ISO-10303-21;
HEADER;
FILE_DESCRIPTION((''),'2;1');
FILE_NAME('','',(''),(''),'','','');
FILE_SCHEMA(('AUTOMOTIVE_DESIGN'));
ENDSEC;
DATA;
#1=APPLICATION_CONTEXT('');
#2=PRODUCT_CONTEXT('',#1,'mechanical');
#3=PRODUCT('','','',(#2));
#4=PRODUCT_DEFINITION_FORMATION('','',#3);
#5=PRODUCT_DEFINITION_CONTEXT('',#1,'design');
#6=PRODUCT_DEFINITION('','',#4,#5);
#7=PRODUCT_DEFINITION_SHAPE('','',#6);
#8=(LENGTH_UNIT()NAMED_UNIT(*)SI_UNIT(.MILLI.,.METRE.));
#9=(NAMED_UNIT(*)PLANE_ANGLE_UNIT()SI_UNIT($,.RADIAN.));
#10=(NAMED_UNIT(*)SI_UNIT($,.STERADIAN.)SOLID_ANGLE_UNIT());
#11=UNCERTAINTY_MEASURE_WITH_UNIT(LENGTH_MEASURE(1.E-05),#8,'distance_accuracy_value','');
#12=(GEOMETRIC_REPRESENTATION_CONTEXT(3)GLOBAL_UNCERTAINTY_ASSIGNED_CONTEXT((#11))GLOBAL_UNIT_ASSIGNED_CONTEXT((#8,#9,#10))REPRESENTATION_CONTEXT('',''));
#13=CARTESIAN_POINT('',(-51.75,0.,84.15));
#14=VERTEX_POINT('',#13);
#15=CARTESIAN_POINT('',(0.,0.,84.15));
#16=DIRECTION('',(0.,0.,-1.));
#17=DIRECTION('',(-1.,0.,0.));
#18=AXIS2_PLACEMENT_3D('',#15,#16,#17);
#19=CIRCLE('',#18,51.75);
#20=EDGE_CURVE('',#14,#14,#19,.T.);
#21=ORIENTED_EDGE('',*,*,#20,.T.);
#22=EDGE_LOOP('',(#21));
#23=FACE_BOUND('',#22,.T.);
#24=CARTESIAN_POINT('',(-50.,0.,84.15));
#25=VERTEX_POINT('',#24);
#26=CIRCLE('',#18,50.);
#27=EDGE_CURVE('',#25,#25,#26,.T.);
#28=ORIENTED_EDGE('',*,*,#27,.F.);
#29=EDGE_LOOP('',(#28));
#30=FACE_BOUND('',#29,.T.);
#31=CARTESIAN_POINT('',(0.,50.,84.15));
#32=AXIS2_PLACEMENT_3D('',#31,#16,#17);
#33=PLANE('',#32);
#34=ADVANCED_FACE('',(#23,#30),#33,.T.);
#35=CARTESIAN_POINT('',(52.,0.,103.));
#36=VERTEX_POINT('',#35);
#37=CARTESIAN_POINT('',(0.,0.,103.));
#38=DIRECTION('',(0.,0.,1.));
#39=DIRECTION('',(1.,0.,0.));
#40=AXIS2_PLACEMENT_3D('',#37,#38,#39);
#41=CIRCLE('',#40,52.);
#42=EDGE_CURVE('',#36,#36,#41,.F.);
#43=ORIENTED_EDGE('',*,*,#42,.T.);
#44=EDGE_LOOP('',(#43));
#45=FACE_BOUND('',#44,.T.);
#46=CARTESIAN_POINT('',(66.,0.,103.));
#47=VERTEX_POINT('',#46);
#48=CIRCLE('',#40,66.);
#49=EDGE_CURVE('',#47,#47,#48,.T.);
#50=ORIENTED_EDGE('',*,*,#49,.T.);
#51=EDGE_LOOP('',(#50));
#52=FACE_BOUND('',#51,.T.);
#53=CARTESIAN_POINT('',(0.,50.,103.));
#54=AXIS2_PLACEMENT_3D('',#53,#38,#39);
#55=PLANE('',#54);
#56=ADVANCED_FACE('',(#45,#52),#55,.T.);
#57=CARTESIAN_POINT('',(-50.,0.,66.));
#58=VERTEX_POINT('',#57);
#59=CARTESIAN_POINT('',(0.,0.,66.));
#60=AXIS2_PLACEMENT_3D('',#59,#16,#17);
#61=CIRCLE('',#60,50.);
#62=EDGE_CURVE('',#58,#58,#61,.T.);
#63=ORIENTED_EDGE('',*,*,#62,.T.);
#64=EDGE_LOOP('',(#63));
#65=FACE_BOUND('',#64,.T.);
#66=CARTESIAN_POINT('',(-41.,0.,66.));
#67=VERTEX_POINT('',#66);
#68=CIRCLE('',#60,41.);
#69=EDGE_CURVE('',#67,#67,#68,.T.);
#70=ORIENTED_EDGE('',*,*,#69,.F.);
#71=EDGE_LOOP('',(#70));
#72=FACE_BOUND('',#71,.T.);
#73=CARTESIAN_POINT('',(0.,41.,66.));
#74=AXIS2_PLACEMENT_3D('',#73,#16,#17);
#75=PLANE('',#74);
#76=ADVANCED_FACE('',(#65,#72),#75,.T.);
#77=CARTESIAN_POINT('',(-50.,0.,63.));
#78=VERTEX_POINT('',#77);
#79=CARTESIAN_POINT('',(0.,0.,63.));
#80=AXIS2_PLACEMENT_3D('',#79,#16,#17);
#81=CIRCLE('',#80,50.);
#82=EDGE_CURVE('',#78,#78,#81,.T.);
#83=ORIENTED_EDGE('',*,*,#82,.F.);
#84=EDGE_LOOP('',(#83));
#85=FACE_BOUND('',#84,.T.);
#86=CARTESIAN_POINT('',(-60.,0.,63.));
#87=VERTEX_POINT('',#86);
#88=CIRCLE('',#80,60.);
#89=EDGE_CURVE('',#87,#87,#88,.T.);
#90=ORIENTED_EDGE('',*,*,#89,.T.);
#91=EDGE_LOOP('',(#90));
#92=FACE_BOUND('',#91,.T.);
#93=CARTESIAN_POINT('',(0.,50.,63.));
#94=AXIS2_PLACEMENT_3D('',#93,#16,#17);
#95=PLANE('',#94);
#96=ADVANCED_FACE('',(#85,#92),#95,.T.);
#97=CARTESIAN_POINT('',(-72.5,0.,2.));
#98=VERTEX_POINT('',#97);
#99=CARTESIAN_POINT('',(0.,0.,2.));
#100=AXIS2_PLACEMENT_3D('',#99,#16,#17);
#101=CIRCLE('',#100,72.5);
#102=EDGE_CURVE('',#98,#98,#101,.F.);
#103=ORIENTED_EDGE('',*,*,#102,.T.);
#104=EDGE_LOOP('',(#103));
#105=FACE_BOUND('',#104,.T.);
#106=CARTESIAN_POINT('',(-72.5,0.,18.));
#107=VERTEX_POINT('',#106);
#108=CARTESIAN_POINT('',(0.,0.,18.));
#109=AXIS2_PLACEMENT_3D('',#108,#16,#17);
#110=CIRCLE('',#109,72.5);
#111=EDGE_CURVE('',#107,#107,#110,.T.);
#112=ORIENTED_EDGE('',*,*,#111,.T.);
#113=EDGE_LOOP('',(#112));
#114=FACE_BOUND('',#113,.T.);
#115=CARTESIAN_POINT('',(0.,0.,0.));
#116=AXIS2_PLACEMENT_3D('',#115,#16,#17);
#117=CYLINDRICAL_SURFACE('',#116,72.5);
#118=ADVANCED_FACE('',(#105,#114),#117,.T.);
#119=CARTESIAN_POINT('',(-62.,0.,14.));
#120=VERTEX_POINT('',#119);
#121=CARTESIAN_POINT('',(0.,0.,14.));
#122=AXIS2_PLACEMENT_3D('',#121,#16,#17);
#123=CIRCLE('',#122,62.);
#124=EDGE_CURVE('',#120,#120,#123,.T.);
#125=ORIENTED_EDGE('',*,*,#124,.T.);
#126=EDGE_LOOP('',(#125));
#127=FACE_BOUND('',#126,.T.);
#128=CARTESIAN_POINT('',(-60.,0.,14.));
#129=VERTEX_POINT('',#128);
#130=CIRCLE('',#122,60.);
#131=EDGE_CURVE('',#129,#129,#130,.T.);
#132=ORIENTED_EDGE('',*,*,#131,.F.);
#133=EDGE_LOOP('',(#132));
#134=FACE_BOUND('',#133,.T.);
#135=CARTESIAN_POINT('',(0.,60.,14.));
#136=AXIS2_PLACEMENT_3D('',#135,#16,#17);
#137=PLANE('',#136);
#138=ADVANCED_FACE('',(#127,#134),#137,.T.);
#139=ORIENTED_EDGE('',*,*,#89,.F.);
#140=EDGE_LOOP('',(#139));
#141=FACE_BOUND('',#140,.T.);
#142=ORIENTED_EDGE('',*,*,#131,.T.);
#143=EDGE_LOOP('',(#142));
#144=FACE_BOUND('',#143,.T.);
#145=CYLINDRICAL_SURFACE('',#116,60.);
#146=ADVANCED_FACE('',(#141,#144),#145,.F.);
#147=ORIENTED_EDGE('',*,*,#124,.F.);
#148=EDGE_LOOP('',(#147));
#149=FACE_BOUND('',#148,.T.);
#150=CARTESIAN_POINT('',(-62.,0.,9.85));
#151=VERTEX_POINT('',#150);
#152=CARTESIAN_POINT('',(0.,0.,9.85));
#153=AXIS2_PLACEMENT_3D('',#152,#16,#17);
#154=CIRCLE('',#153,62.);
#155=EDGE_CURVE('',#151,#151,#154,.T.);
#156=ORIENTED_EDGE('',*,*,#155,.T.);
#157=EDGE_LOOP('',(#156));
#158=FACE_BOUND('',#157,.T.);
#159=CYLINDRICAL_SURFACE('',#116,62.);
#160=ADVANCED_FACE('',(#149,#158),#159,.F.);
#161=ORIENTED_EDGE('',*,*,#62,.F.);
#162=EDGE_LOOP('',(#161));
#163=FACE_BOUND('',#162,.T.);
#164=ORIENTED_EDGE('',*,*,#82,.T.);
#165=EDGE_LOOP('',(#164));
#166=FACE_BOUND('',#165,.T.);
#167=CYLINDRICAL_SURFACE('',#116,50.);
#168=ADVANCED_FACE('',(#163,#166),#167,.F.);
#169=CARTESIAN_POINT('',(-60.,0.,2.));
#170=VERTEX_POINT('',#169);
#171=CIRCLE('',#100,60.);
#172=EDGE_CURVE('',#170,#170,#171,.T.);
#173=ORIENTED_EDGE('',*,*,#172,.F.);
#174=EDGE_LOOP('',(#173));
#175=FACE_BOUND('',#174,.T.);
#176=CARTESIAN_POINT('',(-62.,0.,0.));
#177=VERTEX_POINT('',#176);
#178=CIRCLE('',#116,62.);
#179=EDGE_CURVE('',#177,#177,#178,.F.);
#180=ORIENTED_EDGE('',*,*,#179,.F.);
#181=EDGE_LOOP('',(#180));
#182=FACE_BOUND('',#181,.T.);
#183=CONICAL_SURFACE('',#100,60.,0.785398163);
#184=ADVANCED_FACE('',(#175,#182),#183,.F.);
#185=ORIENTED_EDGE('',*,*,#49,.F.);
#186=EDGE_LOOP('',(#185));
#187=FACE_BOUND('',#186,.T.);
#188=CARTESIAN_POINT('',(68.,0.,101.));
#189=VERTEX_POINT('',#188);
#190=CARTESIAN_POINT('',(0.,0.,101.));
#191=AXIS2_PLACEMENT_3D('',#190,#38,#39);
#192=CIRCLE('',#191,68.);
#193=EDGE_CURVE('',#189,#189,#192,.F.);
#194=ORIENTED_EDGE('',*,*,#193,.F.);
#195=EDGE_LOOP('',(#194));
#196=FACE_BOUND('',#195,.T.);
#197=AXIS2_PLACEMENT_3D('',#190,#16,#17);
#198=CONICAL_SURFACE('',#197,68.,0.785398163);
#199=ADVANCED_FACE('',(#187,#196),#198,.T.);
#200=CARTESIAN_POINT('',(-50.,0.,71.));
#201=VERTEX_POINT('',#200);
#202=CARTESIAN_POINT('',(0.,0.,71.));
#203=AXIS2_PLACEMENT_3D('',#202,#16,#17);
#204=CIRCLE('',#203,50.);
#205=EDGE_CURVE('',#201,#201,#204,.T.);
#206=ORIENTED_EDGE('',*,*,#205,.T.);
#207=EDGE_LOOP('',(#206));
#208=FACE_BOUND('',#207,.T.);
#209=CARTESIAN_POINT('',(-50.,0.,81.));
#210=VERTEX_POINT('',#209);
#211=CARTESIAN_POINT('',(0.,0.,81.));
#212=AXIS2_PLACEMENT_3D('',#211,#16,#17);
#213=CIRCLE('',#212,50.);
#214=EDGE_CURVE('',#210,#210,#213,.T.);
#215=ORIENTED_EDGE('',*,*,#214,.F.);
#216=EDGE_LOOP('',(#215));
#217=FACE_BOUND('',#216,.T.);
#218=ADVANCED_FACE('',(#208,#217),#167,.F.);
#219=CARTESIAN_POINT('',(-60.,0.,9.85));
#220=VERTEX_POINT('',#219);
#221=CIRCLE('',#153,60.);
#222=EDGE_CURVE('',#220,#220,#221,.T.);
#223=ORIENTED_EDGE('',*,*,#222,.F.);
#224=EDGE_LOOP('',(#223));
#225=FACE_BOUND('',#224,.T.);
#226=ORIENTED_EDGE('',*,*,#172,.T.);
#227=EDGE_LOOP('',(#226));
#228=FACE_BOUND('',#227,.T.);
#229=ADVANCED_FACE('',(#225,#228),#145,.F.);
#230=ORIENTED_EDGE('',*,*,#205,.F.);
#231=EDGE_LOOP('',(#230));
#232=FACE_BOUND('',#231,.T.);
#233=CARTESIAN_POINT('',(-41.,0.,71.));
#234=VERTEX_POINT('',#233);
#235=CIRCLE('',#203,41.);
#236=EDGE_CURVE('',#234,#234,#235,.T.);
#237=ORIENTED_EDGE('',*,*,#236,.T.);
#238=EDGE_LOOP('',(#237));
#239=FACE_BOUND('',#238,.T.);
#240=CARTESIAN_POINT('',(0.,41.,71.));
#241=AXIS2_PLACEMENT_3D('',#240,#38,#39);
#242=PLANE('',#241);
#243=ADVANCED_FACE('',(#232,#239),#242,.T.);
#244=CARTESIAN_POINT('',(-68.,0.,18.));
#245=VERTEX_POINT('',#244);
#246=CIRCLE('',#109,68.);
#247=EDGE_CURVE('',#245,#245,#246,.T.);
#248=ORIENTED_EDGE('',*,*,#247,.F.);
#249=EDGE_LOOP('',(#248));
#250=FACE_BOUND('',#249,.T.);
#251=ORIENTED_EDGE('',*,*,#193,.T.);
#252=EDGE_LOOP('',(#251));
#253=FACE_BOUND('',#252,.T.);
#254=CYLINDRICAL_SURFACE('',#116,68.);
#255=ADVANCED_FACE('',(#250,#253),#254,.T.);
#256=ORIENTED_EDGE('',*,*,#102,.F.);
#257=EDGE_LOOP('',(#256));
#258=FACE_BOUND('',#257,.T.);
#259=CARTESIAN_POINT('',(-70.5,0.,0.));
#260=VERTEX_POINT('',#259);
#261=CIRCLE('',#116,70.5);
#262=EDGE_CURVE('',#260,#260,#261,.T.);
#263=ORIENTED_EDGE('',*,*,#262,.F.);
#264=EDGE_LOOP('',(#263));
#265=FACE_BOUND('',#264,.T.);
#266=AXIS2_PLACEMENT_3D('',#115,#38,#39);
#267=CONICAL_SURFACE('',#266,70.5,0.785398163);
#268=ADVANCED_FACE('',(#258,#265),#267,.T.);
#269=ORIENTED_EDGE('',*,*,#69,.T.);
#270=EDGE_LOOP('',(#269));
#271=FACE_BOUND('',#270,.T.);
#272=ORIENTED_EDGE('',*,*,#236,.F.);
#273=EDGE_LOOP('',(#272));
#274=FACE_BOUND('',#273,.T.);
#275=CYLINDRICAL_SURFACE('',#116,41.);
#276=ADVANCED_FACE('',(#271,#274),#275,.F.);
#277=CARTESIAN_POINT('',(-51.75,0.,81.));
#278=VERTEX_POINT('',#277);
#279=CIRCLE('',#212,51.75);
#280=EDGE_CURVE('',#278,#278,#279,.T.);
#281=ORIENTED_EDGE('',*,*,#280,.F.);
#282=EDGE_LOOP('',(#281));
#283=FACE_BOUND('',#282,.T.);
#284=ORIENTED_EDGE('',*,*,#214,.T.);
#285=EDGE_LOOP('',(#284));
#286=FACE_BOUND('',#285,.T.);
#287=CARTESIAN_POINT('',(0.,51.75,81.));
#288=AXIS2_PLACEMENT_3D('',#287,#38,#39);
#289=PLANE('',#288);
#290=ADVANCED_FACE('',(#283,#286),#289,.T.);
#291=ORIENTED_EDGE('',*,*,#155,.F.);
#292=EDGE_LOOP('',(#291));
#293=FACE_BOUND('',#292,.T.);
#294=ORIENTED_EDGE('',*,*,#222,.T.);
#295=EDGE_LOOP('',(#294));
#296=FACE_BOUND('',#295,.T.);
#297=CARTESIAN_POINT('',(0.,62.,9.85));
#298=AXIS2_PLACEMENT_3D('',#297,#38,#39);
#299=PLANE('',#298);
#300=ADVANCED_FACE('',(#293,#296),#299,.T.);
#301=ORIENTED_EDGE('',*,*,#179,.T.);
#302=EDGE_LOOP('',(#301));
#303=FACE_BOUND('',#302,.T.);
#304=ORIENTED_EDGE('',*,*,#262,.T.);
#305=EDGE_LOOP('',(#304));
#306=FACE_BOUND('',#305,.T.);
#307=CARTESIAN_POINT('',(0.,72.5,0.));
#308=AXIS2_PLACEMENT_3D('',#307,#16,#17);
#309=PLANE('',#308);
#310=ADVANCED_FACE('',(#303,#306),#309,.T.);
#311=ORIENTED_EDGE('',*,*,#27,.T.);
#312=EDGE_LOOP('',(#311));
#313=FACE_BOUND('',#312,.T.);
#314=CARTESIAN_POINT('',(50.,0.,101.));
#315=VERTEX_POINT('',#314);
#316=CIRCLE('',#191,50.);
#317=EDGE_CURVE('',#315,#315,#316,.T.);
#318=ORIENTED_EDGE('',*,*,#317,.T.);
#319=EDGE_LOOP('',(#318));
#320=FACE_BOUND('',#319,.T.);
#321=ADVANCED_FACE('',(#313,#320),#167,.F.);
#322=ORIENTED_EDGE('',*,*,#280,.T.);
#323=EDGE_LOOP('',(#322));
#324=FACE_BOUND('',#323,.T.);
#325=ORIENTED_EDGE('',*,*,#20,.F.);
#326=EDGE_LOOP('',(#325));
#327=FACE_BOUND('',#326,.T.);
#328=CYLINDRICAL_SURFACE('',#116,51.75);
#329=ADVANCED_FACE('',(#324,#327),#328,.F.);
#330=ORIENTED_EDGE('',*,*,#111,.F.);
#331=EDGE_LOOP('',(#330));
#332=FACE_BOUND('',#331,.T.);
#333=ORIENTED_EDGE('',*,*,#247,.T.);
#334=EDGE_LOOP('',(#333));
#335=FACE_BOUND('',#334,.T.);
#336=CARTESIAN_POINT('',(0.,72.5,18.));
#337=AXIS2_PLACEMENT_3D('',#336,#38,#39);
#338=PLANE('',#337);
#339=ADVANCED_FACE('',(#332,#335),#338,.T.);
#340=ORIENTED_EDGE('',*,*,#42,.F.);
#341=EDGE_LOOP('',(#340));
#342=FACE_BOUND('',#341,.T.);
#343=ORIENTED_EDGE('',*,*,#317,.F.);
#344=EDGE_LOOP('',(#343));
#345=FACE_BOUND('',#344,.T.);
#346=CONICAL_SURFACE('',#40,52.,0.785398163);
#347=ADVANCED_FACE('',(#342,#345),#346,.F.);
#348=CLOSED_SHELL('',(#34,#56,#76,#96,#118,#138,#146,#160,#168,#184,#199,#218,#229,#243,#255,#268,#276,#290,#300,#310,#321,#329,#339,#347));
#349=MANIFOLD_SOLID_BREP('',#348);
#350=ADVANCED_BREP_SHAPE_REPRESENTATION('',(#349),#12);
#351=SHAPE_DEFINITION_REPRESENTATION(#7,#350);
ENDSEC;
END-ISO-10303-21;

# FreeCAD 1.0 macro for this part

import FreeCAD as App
import Part
import Sketcher
from FreeCAD import Vector
Q = App.Units.Quantity


def edges_at(feature, points):
    """Names of the edges that pass closest to the given points."""
    edges = feature.Shape.Edges
    near = lambda p: min(range(len(edges)), key=lambda i: edges[i].distToShape(Part.Vertex(*p))[0])
    return sorted({f"Edge{near(p) + 1}" for p in points})

doc = App.newDocument("Part")
body = doc.addObject("PartDesign::Body", "Body")

sketch1 = body.newObject("Sketcher::SketchObject", "Sketch")
sketch1.AttachmentSupport = (doc.getObject("YZ_Plane"), [""])
sketch1.MapMode = "FlatFace"
sketch1.addGeometry(Part.LineSegment(Vector(50, 103, 0), Vector(50, 84.2, 0)), False)
sketch1.addGeometry(Part.LineSegment(Vector(50, 84.2, 0), Vector(51.8, 84.2, 0)), False)
sketch1.addGeometry(Part.LineSegment(Vector(51.8, 84.2, 0), Vector(51.8, 81, 0)), False)
sketch1.addGeometry(Part.LineSegment(Vector(51.8, 81, 0), Vector(50, 81, 0)), False)
sketch1.addGeometry(Part.LineSegment(Vector(50, 81, 0), Vector(50, 71, 0)), False)
sketch1.addGeometry(Part.LineSegment(Vector(50, 71, 0), Vector(41, 71, 0)), False)
sketch1.addGeometry(Part.LineSegment(Vector(41, 71, 0), Vector(41, 66, 0)), False)
sketch1.addGeometry(Part.LineSegment(Vector(41, 66, 0), Vector(50, 66, 0)), False)
sketch1.addGeometry(Part.LineSegment(Vector(50, 66, 0), Vector(50, 63, 0)), False)
sketch1.addGeometry(Part.LineSegment(Vector(50, 63, 0), Vector(60, 63, 0)), False)
sketch1.addGeometry(Part.LineSegment(Vector(60, 63, 0), Vector(60, 14, 0)), False)
sketch1.addGeometry(Part.LineSegment(Vector(60, 14, 0), Vector(62, 14, 0)), False)
sketch1.addGeometry(Part.LineSegment(Vector(62, 14, 0), Vector(62, 9.8, 0)), False)
sketch1.addGeometry(Part.LineSegment(Vector(62, 9.8, 0), Vector(60, 9.8, 0)), False)
sketch1.addGeometry(Part.LineSegment(Vector(60, 9.8, 0), Vector(60, 0, 0)), False)
sketch1.addGeometry(Part.LineSegment(Vector(60, 0, 0), Vector(72.5, 0, 0)), False)
sketch1.addGeometry(Part.LineSegment(Vector(72.5, 0, 0), Vector(72.5, 18, 0)), False)
sketch1.addGeometry(Part.LineSegment(Vector(72.5, 18, 0), Vector(68, 18, 0)), False)
sketch1.addGeometry(Part.LineSegment(Vector(68, 18, 0), Vector(68, 103, 0)), False)
sketch1.addGeometry(Part.LineSegment(Vector(68, 103, 0), Vector(50, 103, 0)), False)
sketch1.addConstraint(Sketcher.Constraint("Coincident", 0, 2, 1, 1))
sketch1.addConstraint(Sketcher.Constraint("Coincident", 1, 2, 2, 1))
sketch1.addConstraint(Sketcher.Constraint("Coincident", 2, 2, 3, 1))
sketch1.addConstraint(Sketcher.Constraint("Coincident", 3, 2, 4, 1))
sketch1.addConstraint(Sketcher.Constraint("Coincident", 4, 2, 5, 1))
sketch1.addConstraint(Sketcher.Constraint("Coincident", 5, 2, 6, 1))
sketch1.addConstraint(Sketcher.Constraint("Coincident", 6, 2, 7, 1))
sketch1.addConstraint(Sketcher.Constraint("Coincident", 7, 2, 8, 1))
sketch1.addConstraint(Sketcher.Constraint("Coincident", 8, 2, 9, 1))
sketch1.addConstraint(Sketcher.Constraint("Coincident", 9, 2, 10, 1))
sketch1.addConstraint(Sketcher.Constraint("Coincident", 10, 2, 11, 1))
sketch1.addConstraint(Sketcher.Constraint("Coincident", 11, 2, 12, 1))
sketch1.addConstraint(Sketcher.Constraint("Coincident", 12, 2, 13, 1))
sketch1.addConstraint(Sketcher.Constraint("Coincident", 13, 2, 14, 1))
sketch1.addConstraint(Sketcher.Constraint("Coincident", 14, 2, 15, 1))
sketch1.addConstraint(Sketcher.Constraint("Coincident", 15, 2, 16, 1))
sketch1.addConstraint(Sketcher.Constraint("Coincident", 16, 2, 17, 1))
sketch1.addConstraint(Sketcher.Constraint("Coincident", 17, 2, 18, 1))
sketch1.addConstraint(Sketcher.Constraint("Coincident", 18, 2, 19, 1))
sketch1.addConstraint(Sketcher.Constraint("Coincident", 19, 2, 0, 1))
sketch1.addConstraint(Sketcher.Constraint("Vertical", 0))
sketch1.addConstraint(Sketcher.Constraint("Horizontal", 1))
sketch1.addConstraint(Sketcher.Constraint("Vertical", 2))
sketch1.addConstraint(Sketcher.Constraint("Horizontal", 3))
sketch1.addConstraint(Sketcher.Constraint("Vertical", 4))
sketch1.addConstraint(Sketcher.Constraint("Horizontal", 5))
sketch1.addConstraint(Sketcher.Constraint("Vertical", 6))
sketch1.addConstraint(Sketcher.Constraint("Horizontal", 7))
sketch1.addConstraint(Sketcher.Constraint("Vertical", 8))
sketch1.addConstraint(Sketcher.Constraint("Horizontal", 9))
sketch1.addConstraint(Sketcher.Constraint("Vertical", 10))
sketch1.addConstraint(Sketcher.Constraint("Horizontal", 11))
sketch1.addConstraint(Sketcher.Constraint("Vertical", 12))
sketch1.addConstraint(Sketcher.Constraint("Horizontal", 13))
sketch1.addConstraint(Sketcher.Constraint("Vertical", 14))
sketch1.addConstraint(Sketcher.Constraint("Horizontal", 15))
sketch1.addConstraint(Sketcher.Constraint("Vertical", 16))
sketch1.addConstraint(Sketcher.Constraint("Horizontal", 17))
sketch1.addConstraint(Sketcher.Constraint("Vertical", 18))
sketch1.addConstraint(Sketcher.Constraint("Horizontal", 19))
sketch1.addConstraint(Sketcher.Constraint("PointOnObject", 14, 2, -1))
sketch1.addConstraint(Sketcher.Constraint("Vertical", 0, 2, 3, 2))
sketch1.addConstraint(Sketcher.Constraint("Vertical", 4, 2, 7, 2))
sketch1.addConstraint(Sketcher.Constraint("Vertical", 10, 2, 13, 2))
sketch1.addConstraint(Sketcher.Constraint("Equal", 9, 4))
sketch1.addConstraint(Sketcher.Constraint("Equal", 19, 16))
sketch1.addConstraint(Sketcher.Constraint("DistanceX", 5, 2, 5, 1, Q("9 mm")))
sketch1.addConstraint(Sketcher.Constraint("DistanceX", 9, 1, 9, 2, Q("10 mm")))
sketch1.addConstraint(Sketcher.Constraint("DistanceX", 11, 1, 11, 2, Q("2 mm")))
sketch1.addConstraint(Sketcher.Constraint("DistanceX", 19, 2, 19, 1, Q("18 mm")))
sketch1.addConstraint(Sketcher.Constraint("DistanceY", 6, 2, 6, 1, Q("5 mm")))
sketch1.addConstraint(Sketcher.Constraint("DistanceY", 8, 2, 8, 1, Q("3 mm")))
sketch1.addConstraint(Sketcher.Constraint("DistanceY", 10, 2, 10, 1, Q("49 mm")))
sketch1.addConstraint(Sketcher.Constraint("DistanceY", 18, 1, 18, 2, Q("85 mm")))
sketch1.addConstraint(Sketcher.Constraint("DistanceX", 15, 1, 15, 2, Q("12.5 mm")))
sketch1.addConstraint(Sketcher.Constraint("DistanceX", -1, 1, 0, 2, Q("50 mm")))
sketch1.addConstraint(Sketcher.Constraint("DistanceY", -1, 1, 2, 2, Q("81 mm")))
sketch1.addConstraint(Sketcher.Constraint("DistanceX", 1, 1, 1, 2, Q("1.75 mm")))
sketch1.addConstraint(Sketcher.Constraint("DistanceY", 0, 2, 0, 1, Q("18.85 mm")))
sketch1.addConstraint(Sketcher.Constraint("DistanceY", 12, 2, 12, 1, Q("4.15 mm")))
revolution = body.newObject("PartDesign::Revolution", "Revolution")
revolution.Profile = sketch1
revolution.ReferenceAxis = (sketch1, ["V_Axis"])
revolution.Angle = 360
doc.recompute()

chamfer = body.newObject("PartDesign::Chamfer", "Chamfer")
chamfer.Base = (revolution, edges_at(revolution, [
    (50, 0, 103),
    (60, 0, 0),
    (72.5, 0, 0),
    (68, 0, 103),
]))
chamfer.Size = 2

doc.recompute()
